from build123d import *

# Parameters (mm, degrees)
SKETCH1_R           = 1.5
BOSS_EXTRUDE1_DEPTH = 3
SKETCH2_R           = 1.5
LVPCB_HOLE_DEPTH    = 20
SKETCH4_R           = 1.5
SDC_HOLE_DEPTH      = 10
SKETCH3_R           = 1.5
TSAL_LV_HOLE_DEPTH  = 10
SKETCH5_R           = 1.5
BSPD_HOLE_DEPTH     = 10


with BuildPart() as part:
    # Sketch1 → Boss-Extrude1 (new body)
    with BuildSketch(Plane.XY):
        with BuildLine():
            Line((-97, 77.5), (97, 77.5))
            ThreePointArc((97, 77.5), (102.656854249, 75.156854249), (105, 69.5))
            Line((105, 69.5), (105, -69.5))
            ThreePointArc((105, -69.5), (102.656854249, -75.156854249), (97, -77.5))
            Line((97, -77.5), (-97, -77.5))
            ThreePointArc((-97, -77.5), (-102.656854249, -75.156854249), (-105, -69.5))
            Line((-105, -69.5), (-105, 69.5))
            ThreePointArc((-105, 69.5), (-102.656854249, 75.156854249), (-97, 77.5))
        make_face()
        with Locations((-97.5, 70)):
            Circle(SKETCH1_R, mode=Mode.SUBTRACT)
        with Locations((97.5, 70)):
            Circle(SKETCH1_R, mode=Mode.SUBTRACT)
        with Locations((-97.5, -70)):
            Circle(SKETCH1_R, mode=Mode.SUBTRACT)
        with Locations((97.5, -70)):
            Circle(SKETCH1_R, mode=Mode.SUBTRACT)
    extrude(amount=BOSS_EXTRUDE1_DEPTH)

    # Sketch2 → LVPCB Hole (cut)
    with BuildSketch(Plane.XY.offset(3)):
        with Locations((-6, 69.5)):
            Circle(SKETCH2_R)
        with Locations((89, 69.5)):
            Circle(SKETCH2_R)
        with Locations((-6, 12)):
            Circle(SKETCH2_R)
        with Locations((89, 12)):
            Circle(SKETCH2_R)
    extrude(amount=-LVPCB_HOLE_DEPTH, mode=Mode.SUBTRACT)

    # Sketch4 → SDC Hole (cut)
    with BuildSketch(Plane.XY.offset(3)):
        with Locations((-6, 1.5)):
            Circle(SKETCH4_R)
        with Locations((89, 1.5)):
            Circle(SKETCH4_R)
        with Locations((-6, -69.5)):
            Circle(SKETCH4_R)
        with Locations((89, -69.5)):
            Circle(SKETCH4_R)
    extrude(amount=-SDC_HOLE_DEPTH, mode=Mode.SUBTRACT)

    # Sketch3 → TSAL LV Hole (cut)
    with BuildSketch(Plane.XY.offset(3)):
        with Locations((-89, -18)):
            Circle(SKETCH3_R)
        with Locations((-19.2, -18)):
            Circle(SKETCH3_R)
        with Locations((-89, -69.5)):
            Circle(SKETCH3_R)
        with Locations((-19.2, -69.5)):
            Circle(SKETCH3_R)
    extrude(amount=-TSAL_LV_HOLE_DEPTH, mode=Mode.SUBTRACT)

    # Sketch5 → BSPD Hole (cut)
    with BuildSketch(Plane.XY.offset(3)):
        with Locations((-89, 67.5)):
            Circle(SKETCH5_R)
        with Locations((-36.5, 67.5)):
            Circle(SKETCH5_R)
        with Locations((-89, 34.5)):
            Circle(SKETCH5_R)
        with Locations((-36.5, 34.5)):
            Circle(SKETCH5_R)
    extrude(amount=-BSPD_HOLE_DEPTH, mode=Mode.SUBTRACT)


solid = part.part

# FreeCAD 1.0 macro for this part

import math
import FreeCAD as App
import Part
import Sketcher

V = App.Vector
Q = App.Units.Quantity

doc = App.newDocument("Part")
body = doc.addObject("PartDesign::Body", "Body")

# Sketch on XY plane
sketch1 = body.newObject("Sketcher::SketchObject", "Sketch")
sketch1.AttachmentSupport = (doc.getObject("XY_Plane"), [""])
sketch1.MapMode = "FlatFace"
sketch1.addGeometry([
    Part.LineSegment(V(97, 77.5, 0), V(-97, 77.5, 0)),  # 0
    Part.ArcOfCircle(Part.Circle(V(-97, 69.5, 0), V(0, 0, 1), 8), math.radians(90), math.radians(180)),  # 1
    Part.LineSegment(V(-105, 69.5, 0), V(-105, -69.5, 0)),  # 2
    Part.ArcOfCircle(Part.Circle(V(-97, -69.5, 0), V(0, 0, 1), 8), math.radians(-180), math.radians(-90)),  # 3
    Part.LineSegment(V(-97, -77.5, 0), V(97, -77.5, 0)),  # 4
    Part.ArcOfCircle(Part.Circle(V(97, -69.5, 0), V(0, 0, 1), 8), math.radians(-90), math.radians(0)),  # 5
    Part.LineSegment(V(105, -69.5, 0), V(105, 69.5, 0)),  # 6
    Part.ArcOfCircle(Part.Circle(V(97, 69.5, 0), V(0, 0, 1), 8), math.radians(0), math.radians(90)),  # 7
    Part.Circle(V(97.5, -70, 0), V(0, 0, 1), 1.5),  # 8
    Part.Circle(V(-97.5, -70, 0), V(0, 0, 1), 1.5),  # 9
    Part.Circle(V(97.5, 70, 0), V(0, 0, 1), 1.5),  # 10
    Part.Circle(V(-97.5, 70, 0), V(0, 0, 1), 1.5),  # 11
], False)
sketch1.addConstraint([
    Sketcher.Constraint("Tangent", 0, 2, 1, 1),
    Sketcher.Constraint("Tangent", 1, 2, 2, 1),
    Sketcher.Constraint("Tangent", 2, 2, 3, 1),
    Sketcher.Constraint("Tangent", 3, 2, 4, 1),
    Sketcher.Constraint("Tangent", 4, 2, 5, 1),
    Sketcher.Constraint("Tangent", 5, 2, 6, 1),
    Sketcher.Constraint("Tangent", 6, 2, 7, 1),
    Sketcher.Constraint("Tangent", 7, 2, 0, 1),
    Sketcher.Constraint("Horizontal", 0),
    Sketcher.Constraint("Vertical", 2),
    Sketcher.Constraint("Horizontal", 4),
    Sketcher.Constraint("Vertical", 6),
    Sketcher.Constraint("Equal", 1, 3),
    Sketcher.Constraint("Equal", 3, 5),
    Sketcher.Constraint("Equal", 5, 7),
    Sketcher.Constraint("Equal", 8, 9),
    Sketcher.Constraint("Equal", 9, 10),
    Sketcher.Constraint("Equal", 10, 11),
    Sketcher.Constraint("Symmetric", 1, 3, 5, 3, -1, 1),
    Sketcher.Constraint("Symmetric", 9, 3, 10, 3, -1, 1),
    Sketcher.Constraint("Symmetric", 8, 3, 11, 3, -1, 1),
    Sketcher.Constraint("Symmetric", 8, 3, 9, 3, -2),
    Sketcher.Constraint("Diameter", 8, Q("3 mm")),
    Sketcher.Constraint("Radius", 1, Q("8 mm")),
    Sketcher.Constraint("DistanceX", 0, 2, 0, 1, Q("194 mm")),
    Sketcher.Constraint("DistanceY", 2, 2, 2, 1, Q("139 mm")),
    Sketcher.Constraint("DistanceY", 8, 3, -1, 1, Q("70 mm")),
    Sketcher.Constraint("DistanceX", 9, 3, 8, 3, Q("195 mm")),
])
pad1 = body.newObject("PartDesign::Pad", "Pad")
pad1.Profile = sketch1
pad1.Length = 3

# Sketch on XY plane
sketch2 = body.newObject("Sketcher::SketchObject", "Sketch001")
sketch2.AttachmentSupport = (doc.getObject("XY_Plane"), [""])
sketch2.MapMode = "FlatFace"
sketch2.AttachmentOffset = App.Placement(V(0, 0, 3), App.Rotation())
sketch2.addGeometry([
    Part.Circle(V(-6, 69.5, 0), V(0, 0, 1), 1.5),
    Part.Circle(V(89, 69.5, 0), V(0, 0, 1), 1.5),
    Part.Circle(V(-6, 12, 0), V(0, 0, 1), 1.5),
    Part.Circle(V(89, 12, 0), V(0, 0, 1), 1.5),
], False)
sketch2.addConstraint([
    Sketcher.Constraint("Equal", 0, 1),
    Sketcher.Constraint("Equal", 1, 2),
    Sketcher.Constraint("Equal", 2, 3),
    Sketcher.Constraint("Horizontal", 0, 3, 1, 3),
    Sketcher.Constraint("Horizontal", 2, 3, 3, 3),
    Sketcher.Constraint("Vertical", 0, 3, 2, 3),
    Sketcher.Constraint("Vertical", 1, 3, 3, 3),
    Sketcher.Constraint("Diameter", 0, Q("3 mm")),
    Sketcher.Constraint("DistanceX", 0, 3, -1, 1, Q("6 mm")),
    Sketcher.Constraint("DistanceX", -1, 1, 1, 3, Q("89 mm")),
    Sketcher.Constraint("DistanceY", -1, 1, 2, 3, Q("12 mm")),
    Sketcher.Constraint("DistanceY", -1, 1, 0, 3, Q("69.5 mm")),
])
pocket1 = body.newObject("PartDesign::Pocket", "Pocket")
pocket1.Profile = sketch2
pocket1.Length = 20

# Sketch on XY plane
sketch3 = body.newObject("Sketcher::SketchObject", "Sketch002")
sketch3.AttachmentSupport = (doc.getObject("XY_Plane"), [""])
sketch3.MapMode = "FlatFace"
sketch3.AttachmentOffset = App.Placement(V(0, 0, 3), App.Rotation())
sketch3.addGeometry([
    Part.Circle(V(-6, 1.5, 0), V(0, 0, 1), 1.5),
    Part.Circle(V(89, 1.5, 0), V(0, 0, 1), 1.5),
    Part.Circle(V(-6, -69.5, 0), V(0, 0, 1), 1.5),
    Part.Circle(V(89, -69.5, 0), V(0, 0, 1), 1.5),
], False)
sketch3.addConstraint([
    Sketcher.Constraint("Equal", 0, 1),
    Sketcher.Constraint("Equal", 1, 2),
    Sketcher.Constraint("Equal", 2, 3),
    Sketcher.Constraint("Horizontal", 0, 3, 1, 3),
    Sketcher.Constraint("Horizontal", 2, 3, 3, 3),
    Sketcher.Constraint("Vertical", 0, 3, 2, 3),
    Sketcher.Constraint("Vertical", 1, 3, 3, 3),
    Sketcher.Constraint("Diameter", 0, Q("3 mm")),
    Sketcher.Constraint("DistanceX", 0, 3, -1, 1, Q("6 mm")),
    Sketcher.Constraint("DistanceX", -1, 1, 1, 3, Q("89 mm")),
    Sketcher.Constraint("DistanceY", 2, 3, 0, 3, Q("71 mm")),
    Sketcher.Constraint("DistanceY", -1, 1, 0, 3, Q("1.5 mm")),
])
pocket2 = body.newObject("PartDesign::Pocket", "Pocket001")
pocket2.Profile = sketch3
pocket2.Length = 10

# Sketch on XY plane
sketch4 = body.newObject("Sketcher::SketchObject", "Sketch003")
sketch4.AttachmentSupport = (doc.getObject("XY_Plane"), [""])
sketch4.MapMode = "FlatFace"
sketch4.AttachmentOffset = App.Placement(V(0, 0, 3), App.Rotation())
sketch4.addGeometry([
    Part.Circle(V(-89, -18, 0), V(0, 0, 1), 1.5),
    Part.Circle(V(-19.2, -18, 0), V(0, 0, 1), 1.5),
    Part.Circle(V(-89, -69.5, 0), V(0, 0, 1), 1.5),
    Part.Circle(V(-19.2, -69.5, 0), V(0, 0, 1), 1.5),
], False)
sketch4.addConstraint([
    Sketcher.Constraint("Equal", 0, 1),
    Sketcher.Constraint("Equal", 1, 2),
    Sketcher.Constraint("Equal", 2, 3),
    Sketcher.Constraint("Horizontal", 0, 3, 1, 3),
    Sketcher.Constraint("Horizontal", 2, 3, 3, 3),
    Sketcher.Constraint("Vertical", 0, 3, 2, 3),
    Sketcher.Constraint("Vertical", 1, 3, 3, 3),
    Sketcher.Constraint("Diameter", 0, Q("3 mm")),
    Sketcher.Constraint("DistanceX", 0, 3, -1, 1, Q("89 mm")),
    Sketcher.Constraint("DistanceY", 0, 3, -1, 1, Q("18 mm")),
    Sketcher.Constraint("DistanceX", 1, 3, -1, 1, Q("19.2 mm")),
    Sketcher.Constraint("DistanceY", 2, 3, -1, 1, Q("69.5 mm")),
])
pocket3 = body.newObject("PartDesign::Pocket", "Pocket002")
pocket3.Profile = sketch4
pocket3.Length = 10

# Sketch on XY plane
sketch5 = body.newObject("Sketcher::SketchObject", "Sketch004")
sketch5.AttachmentSupport = (doc.getObject("XY_Plane"), [""])
sketch5.MapMode = "FlatFace"
sketch5.AttachmentOffset = App.Placement(V(0, 0, 3), App.Rotation())
sketch5.addGeometry([
    Part.Circle(V(-89, 67.5, 0), V(0, 0, 1), 1.5),
    Part.Circle(V(-36.5, 67.5, 0), V(0, 0, 1), 1.5),
    Part.Circle(V(-89, 34.5, 0), V(0, 0, 1), 1.5),
    Part.Circle(V(-36.5, 34.5, 0), V(0, 0, 1), 1.5),
], False)
sketch5.addConstraint([
    Sketcher.Constraint("Equal", 0, 1),
    Sketcher.Constraint("Equal", 1, 2),
    Sketcher.Constraint("Equal", 2, 3),
    Sketcher.Constraint("Horizontal", 0, 3, 1, 3),
    Sketcher.Constraint("Horizontal", 2, 3, 3, 3),
    Sketcher.Constraint("Vertical", 0, 3, 2, 3),
    Sketcher.Constraint("Vertical", 1, 3, 3, 3),
    Sketcher.Constraint("Diameter", 0, Q("3 mm")),
    Sketcher.Constraint("DistanceX", 0, 3, -1, 1, Q("89 mm")),
    Sketcher.Constraint("DistanceY", 2, 3, 0, 3, Q("33 mm")),
    Sketcher.Constraint("DistanceY", -1, 1, 0, 3, Q("67.5 mm")),
    Sketcher.Constraint("DistanceX", 1, 3, -1, 1, Q("36.5 mm")),
])
pocket4 = body.newObject("PartDesign::Pocket", "Pocket003")
pocket4.Profile = sketch5
pocket4.Length = 10

doc.recompute()
